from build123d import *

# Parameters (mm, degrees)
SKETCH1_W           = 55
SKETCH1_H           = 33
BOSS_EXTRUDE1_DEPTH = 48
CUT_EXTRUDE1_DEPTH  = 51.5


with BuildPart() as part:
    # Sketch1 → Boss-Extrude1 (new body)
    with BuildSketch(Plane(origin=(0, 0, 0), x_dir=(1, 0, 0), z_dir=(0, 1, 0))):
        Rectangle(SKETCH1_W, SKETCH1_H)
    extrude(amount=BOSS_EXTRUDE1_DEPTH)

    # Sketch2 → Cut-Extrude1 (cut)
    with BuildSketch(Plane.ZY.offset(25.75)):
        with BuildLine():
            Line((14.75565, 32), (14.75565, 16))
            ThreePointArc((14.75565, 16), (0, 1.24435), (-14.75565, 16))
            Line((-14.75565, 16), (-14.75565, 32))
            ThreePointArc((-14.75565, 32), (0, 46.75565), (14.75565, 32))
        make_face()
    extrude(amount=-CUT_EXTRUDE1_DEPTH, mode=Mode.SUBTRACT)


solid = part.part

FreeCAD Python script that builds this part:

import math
import FreeCAD as App
import Part
import Sketcher
Q = App.Units.Quantity

doc = App.newDocument("Part")
body = doc.addObject("PartDesign::Body", "Body")

sketch1 = body.newObject("Sketcher::SketchObject", "Sketch")
sketch1.AttachmentSupport = (doc.getObject("XZ_Plane"), [""])
sketch1.MapMode = "FlatFace"
sketch1.addGeometry(Part.LineSegment(App.Vector(-28, -16, 0), App.Vector(-28, 16, 0)), False)
sketch1.addGeometry(Part.LineSegment(App.Vector(-28, 16, 0), App.Vector(28, 16, 0)), False)
sketch1.addGeometry(Part.LineSegment(App.Vector(28, 16, 0), App.Vector(28, -16, 0)), False)
sketch1.addGeometry(Part.LineSegment(App.Vector(28, -16, 0), App.Vector(-28, -16, 0)), False)
sketch1.addConstraint(Sketcher.Constraint("Coincident", 0, 2, 1, 1))
sketch1.addConstraint(Sketcher.Constraint("Coincident", 1, 2, 2, 1))
sketch1.addConstraint(Sketcher.Constraint("Coincident", 2, 2, 3, 1))
sketch1.addConstraint(Sketcher.Constraint("Coincident", 3, 2, 0, 1))
sketch1.addConstraint(Sketcher.Constraint("Vertical", 0))
sketch1.addConstraint(Sketcher.Constraint("Horizontal", 1))
sketch1.addConstraint(Sketcher.Constraint("Vertical", 2))
sketch1.addConstraint(Sketcher.Constraint("Horizontal", 3))
sketch1.addConstraint(Sketcher.Constraint("Symmetric", 0, 2, 2, 2, -1, 1))
sketch1.addConstraint(Sketcher.Constraint("DistanceX", 1, 1, 1, 2, Q("55 mm")))
sketch1.addConstraint(Sketcher.Constraint("DistanceY", 0, 1, 0, 2, Q("33 mm")))
pad1 = body.newObject("PartDesign::Pad", "Pad")
pad1.Profile = sketch1
pad1.Length = 48
pad1.Reversed = True

sketch2 = body.newObject("Sketcher::SketchObject", "Sketch001")
sketch2.AttachmentSupport = (doc.getObject("YZ_Plane"), [""])
sketch2.MapMode = "FlatFace"
sketch2.AttachmentOffset = App.Placement(App.Vector(0, 0, -25.75), App.Rotation())
sketch2.addGeometry(Part.LineSegment(App.Vector(16, 15, 0), App.Vector(32, 15, 0)), False)
sketch2.addGeometry(Part.ArcOfCircle(Part.Circle(App.Vector(32, 0, 0), App.Vector(0, 0, 1), 15), math.radians(-90), math.radians(90)), False)
sketch2.addGeometry(Part.LineSegment(App.Vector(32, -15, 0), App.Vector(16, -15, 0)), False)
sketch2.addGeometry(Part.ArcOfCircle(Part.Circle(App.Vector(16, 0, 0), App.Vector(0, 0, 1), 15), math.radians(90), math.radians(270)), False)
sketch2.addConstraint(Sketcher.Constraint("Tangent", 0, 2, 1, 2))
sketch2.addConstraint(Sketcher.Constraint("Tangent", 1, 1, 2, 1))
sketch2.addConstraint(Sketcher.Constraint("Tangent", 2, 2, 3, 2))
sketch2.addConstraint(Sketcher.Constraint("Tangent", 3, 1, 0, 1))
sketch2.addConstraint(Sketcher.Constraint("Horizontal", 0))
sketch2.addConstraint(Sketcher.Constraint("Horizontal", 2))
sketch2.addConstraint(Sketcher.Constraint("PointOnObject", 1, 3, -1))
sketch2.addConstraint(Sketcher.Constraint("DistanceX", 0, 1, 0, 2, Q("16 mm")))
sketch2.addConstraint(Sketcher.Constraint("DistanceX", -1, 1, 1, 3, Q("32 mm")))
sketch2.addConstraint(Sketcher.Constraint("Radius", 1, Q("14.75565 mm")))
pocket1 = body.newObject("PartDesign::Pocket", "Pocket")
pocket1.Profile = sketch2
pocket1.Length = 51.5
pocket1.Reversed = True

doc.recompute()
